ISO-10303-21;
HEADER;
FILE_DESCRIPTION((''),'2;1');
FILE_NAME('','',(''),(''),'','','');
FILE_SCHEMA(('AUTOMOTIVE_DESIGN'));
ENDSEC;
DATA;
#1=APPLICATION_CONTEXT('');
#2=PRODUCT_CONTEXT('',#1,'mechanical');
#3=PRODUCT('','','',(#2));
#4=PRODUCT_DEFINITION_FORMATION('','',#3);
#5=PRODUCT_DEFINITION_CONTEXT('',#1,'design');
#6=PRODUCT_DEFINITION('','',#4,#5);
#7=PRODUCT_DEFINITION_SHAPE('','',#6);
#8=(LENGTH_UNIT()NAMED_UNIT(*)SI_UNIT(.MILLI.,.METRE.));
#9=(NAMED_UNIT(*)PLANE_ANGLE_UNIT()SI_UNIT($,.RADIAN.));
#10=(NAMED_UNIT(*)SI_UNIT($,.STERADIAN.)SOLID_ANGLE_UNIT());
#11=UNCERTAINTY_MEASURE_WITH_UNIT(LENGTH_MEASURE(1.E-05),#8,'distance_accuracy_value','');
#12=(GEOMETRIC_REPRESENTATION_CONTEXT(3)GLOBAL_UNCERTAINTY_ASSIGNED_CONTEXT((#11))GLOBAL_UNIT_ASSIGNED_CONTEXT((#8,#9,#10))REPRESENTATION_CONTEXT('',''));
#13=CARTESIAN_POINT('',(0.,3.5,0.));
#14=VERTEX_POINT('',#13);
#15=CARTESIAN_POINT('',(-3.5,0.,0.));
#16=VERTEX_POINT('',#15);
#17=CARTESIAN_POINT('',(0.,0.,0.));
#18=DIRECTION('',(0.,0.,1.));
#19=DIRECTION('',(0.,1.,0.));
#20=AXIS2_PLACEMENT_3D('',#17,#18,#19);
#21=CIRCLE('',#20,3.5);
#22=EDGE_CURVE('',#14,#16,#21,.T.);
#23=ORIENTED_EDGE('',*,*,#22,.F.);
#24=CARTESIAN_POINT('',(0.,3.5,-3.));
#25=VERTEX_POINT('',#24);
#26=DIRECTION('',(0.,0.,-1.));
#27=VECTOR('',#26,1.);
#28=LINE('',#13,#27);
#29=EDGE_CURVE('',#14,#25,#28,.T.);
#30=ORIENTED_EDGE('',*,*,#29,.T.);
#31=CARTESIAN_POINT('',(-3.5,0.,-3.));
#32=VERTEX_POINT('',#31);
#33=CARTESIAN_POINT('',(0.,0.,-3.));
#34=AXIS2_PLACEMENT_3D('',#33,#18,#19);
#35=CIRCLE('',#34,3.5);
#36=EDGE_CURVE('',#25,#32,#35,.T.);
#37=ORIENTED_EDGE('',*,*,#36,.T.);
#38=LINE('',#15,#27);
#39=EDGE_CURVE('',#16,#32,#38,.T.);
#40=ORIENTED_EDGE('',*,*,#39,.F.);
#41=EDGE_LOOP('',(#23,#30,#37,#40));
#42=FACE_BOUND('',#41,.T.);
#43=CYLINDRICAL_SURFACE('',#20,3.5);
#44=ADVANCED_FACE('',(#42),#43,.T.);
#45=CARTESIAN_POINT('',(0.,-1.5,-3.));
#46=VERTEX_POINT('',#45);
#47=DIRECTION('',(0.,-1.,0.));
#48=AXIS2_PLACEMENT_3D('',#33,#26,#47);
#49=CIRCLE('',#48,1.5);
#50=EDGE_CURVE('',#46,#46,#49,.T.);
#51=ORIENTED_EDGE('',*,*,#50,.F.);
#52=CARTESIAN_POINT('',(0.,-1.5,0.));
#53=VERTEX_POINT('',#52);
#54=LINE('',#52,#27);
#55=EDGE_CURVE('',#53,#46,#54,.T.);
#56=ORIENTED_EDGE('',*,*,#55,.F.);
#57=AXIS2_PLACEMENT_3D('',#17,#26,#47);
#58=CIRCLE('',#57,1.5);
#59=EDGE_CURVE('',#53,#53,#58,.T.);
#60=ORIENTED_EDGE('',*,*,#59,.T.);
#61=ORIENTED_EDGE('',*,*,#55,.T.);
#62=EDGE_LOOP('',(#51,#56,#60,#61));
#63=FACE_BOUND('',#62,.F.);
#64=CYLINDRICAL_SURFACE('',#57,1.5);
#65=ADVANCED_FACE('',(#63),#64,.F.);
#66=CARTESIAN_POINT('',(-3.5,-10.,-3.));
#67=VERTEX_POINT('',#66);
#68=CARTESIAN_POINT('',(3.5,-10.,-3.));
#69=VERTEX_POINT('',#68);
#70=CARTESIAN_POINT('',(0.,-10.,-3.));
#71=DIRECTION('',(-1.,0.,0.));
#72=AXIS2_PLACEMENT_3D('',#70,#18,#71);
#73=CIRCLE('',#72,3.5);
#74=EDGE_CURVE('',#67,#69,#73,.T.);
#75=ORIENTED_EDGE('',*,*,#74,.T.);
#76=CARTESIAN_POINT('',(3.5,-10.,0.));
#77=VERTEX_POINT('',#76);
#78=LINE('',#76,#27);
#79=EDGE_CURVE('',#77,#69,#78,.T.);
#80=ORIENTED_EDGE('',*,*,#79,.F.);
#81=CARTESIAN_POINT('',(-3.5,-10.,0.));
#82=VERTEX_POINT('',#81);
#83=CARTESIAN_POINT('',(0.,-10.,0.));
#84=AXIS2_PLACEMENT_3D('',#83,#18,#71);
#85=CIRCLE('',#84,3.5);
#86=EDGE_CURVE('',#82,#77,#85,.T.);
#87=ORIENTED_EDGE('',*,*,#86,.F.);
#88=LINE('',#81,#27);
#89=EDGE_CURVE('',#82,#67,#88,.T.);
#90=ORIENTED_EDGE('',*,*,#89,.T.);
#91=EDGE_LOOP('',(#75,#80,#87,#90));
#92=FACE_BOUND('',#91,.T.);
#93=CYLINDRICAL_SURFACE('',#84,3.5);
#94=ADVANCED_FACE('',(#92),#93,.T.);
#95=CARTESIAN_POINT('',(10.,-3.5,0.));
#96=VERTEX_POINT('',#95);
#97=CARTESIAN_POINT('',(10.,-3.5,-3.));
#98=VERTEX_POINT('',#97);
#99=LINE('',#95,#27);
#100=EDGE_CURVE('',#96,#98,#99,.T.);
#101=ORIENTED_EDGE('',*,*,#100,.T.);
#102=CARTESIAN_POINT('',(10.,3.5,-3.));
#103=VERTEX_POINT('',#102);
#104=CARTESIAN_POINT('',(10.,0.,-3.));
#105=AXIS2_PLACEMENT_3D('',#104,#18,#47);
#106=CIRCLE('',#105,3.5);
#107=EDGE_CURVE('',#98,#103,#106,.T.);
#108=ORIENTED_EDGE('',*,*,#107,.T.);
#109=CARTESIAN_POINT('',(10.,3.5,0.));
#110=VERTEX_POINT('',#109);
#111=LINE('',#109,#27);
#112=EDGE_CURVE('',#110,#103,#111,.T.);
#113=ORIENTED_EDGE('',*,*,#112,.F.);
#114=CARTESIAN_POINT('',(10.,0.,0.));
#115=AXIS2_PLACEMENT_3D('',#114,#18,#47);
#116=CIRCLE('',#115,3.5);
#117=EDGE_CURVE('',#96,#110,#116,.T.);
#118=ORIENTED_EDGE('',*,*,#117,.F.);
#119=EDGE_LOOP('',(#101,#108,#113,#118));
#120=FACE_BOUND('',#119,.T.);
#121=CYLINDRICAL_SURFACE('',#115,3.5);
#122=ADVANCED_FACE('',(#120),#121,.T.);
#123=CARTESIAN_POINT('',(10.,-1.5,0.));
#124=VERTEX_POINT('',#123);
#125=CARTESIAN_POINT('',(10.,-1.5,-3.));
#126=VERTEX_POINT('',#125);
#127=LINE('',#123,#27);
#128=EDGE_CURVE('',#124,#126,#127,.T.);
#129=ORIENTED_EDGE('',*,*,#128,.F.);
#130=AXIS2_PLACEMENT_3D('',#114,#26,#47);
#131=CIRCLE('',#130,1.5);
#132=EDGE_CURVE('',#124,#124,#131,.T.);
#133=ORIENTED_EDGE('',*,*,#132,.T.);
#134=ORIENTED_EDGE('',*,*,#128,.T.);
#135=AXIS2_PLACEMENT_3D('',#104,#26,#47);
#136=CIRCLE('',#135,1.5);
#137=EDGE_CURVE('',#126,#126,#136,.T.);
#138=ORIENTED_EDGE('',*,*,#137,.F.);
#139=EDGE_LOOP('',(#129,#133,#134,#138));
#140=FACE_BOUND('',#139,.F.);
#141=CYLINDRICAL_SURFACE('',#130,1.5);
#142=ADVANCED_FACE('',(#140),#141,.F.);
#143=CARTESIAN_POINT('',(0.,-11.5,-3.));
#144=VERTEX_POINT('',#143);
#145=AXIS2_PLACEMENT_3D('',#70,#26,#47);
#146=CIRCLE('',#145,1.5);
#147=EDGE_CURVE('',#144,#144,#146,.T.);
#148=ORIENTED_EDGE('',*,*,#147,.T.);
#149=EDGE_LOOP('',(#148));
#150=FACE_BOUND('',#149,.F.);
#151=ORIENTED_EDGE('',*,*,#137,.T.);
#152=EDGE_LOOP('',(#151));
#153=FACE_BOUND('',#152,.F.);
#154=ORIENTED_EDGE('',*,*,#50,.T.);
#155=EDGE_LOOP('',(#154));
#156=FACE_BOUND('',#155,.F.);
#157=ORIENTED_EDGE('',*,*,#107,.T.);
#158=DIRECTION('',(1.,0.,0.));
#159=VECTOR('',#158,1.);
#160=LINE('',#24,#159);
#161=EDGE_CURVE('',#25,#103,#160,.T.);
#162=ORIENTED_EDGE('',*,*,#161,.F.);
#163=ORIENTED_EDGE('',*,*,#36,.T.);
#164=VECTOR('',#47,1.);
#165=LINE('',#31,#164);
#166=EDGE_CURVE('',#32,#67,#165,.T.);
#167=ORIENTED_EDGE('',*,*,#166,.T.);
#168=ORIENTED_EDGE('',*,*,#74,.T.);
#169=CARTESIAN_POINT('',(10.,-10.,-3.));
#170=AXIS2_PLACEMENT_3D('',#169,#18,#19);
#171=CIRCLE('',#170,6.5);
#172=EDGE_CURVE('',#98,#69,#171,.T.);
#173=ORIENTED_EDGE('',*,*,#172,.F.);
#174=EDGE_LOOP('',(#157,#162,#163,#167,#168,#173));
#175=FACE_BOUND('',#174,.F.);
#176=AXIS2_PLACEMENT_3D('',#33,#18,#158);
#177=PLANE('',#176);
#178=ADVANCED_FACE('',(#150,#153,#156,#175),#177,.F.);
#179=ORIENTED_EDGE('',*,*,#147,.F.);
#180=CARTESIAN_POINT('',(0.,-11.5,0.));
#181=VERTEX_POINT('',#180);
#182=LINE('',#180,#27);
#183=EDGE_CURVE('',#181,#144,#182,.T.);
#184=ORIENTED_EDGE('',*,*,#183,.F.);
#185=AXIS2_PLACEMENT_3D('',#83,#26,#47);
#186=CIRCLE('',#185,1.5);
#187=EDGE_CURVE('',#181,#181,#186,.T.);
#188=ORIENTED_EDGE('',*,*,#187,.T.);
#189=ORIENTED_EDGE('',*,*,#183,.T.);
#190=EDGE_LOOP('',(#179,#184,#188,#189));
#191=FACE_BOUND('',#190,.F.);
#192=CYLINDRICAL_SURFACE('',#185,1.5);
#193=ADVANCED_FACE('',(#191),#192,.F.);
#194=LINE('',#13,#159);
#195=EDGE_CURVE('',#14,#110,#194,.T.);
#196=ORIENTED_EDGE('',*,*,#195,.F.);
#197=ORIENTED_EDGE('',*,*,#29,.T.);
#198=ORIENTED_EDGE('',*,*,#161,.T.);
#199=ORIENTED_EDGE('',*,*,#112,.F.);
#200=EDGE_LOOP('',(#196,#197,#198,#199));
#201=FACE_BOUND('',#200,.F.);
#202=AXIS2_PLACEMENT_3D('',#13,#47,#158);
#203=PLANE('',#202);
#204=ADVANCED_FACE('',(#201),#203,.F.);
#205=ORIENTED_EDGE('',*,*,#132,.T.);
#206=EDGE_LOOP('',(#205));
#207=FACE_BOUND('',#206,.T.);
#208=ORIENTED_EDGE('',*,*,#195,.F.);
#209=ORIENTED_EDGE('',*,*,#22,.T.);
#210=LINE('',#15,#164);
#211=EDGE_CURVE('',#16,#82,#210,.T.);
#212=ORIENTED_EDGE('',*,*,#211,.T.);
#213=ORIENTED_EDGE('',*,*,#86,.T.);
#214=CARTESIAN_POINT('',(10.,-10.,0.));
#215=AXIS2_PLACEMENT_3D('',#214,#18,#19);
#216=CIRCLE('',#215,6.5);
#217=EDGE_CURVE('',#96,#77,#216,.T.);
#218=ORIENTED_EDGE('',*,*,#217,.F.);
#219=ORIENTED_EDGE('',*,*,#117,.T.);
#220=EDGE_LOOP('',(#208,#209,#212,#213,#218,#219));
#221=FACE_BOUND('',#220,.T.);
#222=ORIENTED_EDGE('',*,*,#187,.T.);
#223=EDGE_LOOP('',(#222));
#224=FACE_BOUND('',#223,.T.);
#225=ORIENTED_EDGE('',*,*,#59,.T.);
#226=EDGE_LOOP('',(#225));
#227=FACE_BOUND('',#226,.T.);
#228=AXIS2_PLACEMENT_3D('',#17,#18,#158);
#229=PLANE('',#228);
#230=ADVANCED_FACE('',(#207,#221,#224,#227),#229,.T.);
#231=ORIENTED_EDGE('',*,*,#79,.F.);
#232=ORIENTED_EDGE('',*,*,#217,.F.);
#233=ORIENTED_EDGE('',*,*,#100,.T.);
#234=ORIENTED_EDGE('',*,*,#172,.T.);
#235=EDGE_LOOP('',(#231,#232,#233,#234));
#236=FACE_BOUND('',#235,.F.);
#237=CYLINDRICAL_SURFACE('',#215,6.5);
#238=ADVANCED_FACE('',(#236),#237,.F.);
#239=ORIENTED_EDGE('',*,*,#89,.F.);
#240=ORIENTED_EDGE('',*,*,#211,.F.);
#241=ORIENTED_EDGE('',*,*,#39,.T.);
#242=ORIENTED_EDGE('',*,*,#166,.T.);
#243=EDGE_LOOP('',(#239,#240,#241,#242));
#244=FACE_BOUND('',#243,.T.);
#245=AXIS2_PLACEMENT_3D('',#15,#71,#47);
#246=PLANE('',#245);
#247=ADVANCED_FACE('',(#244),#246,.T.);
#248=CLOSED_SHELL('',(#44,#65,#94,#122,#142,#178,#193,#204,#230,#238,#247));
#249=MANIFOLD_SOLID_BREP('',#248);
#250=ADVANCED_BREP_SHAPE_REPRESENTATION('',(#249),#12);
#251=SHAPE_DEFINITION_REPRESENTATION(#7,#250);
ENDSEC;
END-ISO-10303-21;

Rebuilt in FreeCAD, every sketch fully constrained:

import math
import FreeCAD as App
import Part
import Sketcher
Q = App.Units.Quantity

doc = App.newDocument("Part")
body = doc.addObject("PartDesign::Body", "Body")

sketch1 = body.newObject("Sketcher::SketchObject", "Sketch")
sketch1.AttachmentSupport = (doc.getObject("XY_Plane"), [""])
sketch1.MapMode = "FlatFace"
sketch1.addGeometry(Part.LineSegment(App.Vector(10, 3.5, 0), App.Vector(0, 3.5, 0)), False)
sketch1.addGeometry(Part.ArcOfCircle(Part.Circle(App.Vector(0, 0, 0), App.Vector(0, 0, 1), 3.5), math.radians(90), math.radians(180)), False)
sketch1.addGeometry(Part.LineSegment(App.Vector(-3.5, 0, 0), App.Vector(-3.5, -10, 0)), False)
sketch1.addGeometry(Part.ArcOfCircle(Part.Circle(App.Vector(0, -10, 0), App.Vector(0, 0, 1), 3.5), math.radians(180), math.radians(360)), False)
sketch1.addGeometry(Part.ArcOfCircle(Part.Circle(App.Vector(10, -10, 0), App.Vector(0, 0, 1), 6.5), math.radians(90), math.radians(180)), False)
sketch1.addGeometry(Part.ArcOfCircle(Part.Circle(App.Vector(10, 0, 0), App.Vector(0, 0, 1), 3.5), math.radians(-90), math.radians(90)), False)
sketch1.addConstraint(Sketcher.Constraint("Tangent", 0, 2, 1, 1))
sketch1.addConstraint(Sketcher.Constraint("Tangent", 1, 2, 2, 1))
sketch1.addConstraint(Sketcher.Constraint("Tangent", 2, 2, 3, 1))
sketch1.addConstraint(Sketcher.Constraint("Tangent", 3, 2, 4, 2))
sketch1.addConstraint(Sketcher.Constraint("Tangent", 4, 1, 5, 1))
sketch1.addConstraint(Sketcher.Constraint("Tangent", 5, 2, 0, 1))
sketch1.addConstraint(Sketcher.Constraint("Horizontal", 0))
sketch1.addConstraint(Sketcher.Constraint("Vertical", 2))
sketch1.addConstraint(Sketcher.Constraint("Coincident", 1, 3, -1, 1))
sketch1.addConstraint(Sketcher.Constraint("Equal", 1, 3))
sketch1.addConstraint(Sketcher.Constraint("Equal", 3, 5))
sketch1.addConstraint(Sketcher.Constraint("Horizontal", 3, 3, 4, 3))
sketch1.addConstraint(Sketcher.Constraint("Vertical", 4, 3, 5, 3))
sketch1.addConstraint(Sketcher.Constraint("Radius", 1, Q("3.5 mm")))
sketch1.addConstraint(Sketcher.Constraint("DistanceX", 0, 2, 0, 1, Q("10 mm")))
pad1 = body.newObject("PartDesign::Pad", "Pad")
pad1.Profile = sketch1
pad1.Length = 3
pad1.Reversed = True

sketch2 = body.newObject("Sketcher::SketchObject", "Sketch001")
sketch2.AttachmentSupport = (doc.getObject("XY_Plane"), [""])
sketch2.MapMode = "FlatFace"
sketch2.addGeometry(Part.Circle(App.Vector(0, 0, 0), App.Vector(0, 0, 1), 1.5), False)
sketch2.addGeometry(Part.Circle(App.Vector(0, -10, 0), App.Vector(0, 0, 1), 1.5), False)
sketch2.addGeometry(Part.Circle(App.Vector(10, 0, 0), App.Vector(0, 0, 1), 1.5), False)
sketch2.addConstraint(Sketcher.Constraint("Coincident", 0, 3, -1, 1))
sketch2.addConstraint(Sketcher.Constraint("Equal", 0, 1))
sketch2.addConstraint(Sketcher.Constraint("Equal", 1, 2))
sketch2.addConstraint(Sketcher.Constraint("PointOnObject", 1, 3, -2))
sketch2.addConstraint(Sketcher.Constraint("PointOnObject", 2, 3, -1))
sketch2.addConstraint(Sketcher.Constraint("Diameter", 0, Q("3 mm")))
sketch2.addConstraint(Sketcher.Constraint("DistanceY", 1, 3, -1, 1, Q("10 mm")))
sketch2.addConstraint(Sketcher.Constraint("DistanceX", -1, 1, 2, 3, Q("10 mm")))
doc.recompute()
hole = body.newObject("PartDesign::Hole", "Hole")
hole.Profile = sketch2
hole.ThreadType = "None"
hole.Diameter = 3
hole.DepthType = "Dimension"
hole.Depth = 8
hole.DrillPoint = "Angled"
hole.DrillPointAngle = 118

doc.recompute()
